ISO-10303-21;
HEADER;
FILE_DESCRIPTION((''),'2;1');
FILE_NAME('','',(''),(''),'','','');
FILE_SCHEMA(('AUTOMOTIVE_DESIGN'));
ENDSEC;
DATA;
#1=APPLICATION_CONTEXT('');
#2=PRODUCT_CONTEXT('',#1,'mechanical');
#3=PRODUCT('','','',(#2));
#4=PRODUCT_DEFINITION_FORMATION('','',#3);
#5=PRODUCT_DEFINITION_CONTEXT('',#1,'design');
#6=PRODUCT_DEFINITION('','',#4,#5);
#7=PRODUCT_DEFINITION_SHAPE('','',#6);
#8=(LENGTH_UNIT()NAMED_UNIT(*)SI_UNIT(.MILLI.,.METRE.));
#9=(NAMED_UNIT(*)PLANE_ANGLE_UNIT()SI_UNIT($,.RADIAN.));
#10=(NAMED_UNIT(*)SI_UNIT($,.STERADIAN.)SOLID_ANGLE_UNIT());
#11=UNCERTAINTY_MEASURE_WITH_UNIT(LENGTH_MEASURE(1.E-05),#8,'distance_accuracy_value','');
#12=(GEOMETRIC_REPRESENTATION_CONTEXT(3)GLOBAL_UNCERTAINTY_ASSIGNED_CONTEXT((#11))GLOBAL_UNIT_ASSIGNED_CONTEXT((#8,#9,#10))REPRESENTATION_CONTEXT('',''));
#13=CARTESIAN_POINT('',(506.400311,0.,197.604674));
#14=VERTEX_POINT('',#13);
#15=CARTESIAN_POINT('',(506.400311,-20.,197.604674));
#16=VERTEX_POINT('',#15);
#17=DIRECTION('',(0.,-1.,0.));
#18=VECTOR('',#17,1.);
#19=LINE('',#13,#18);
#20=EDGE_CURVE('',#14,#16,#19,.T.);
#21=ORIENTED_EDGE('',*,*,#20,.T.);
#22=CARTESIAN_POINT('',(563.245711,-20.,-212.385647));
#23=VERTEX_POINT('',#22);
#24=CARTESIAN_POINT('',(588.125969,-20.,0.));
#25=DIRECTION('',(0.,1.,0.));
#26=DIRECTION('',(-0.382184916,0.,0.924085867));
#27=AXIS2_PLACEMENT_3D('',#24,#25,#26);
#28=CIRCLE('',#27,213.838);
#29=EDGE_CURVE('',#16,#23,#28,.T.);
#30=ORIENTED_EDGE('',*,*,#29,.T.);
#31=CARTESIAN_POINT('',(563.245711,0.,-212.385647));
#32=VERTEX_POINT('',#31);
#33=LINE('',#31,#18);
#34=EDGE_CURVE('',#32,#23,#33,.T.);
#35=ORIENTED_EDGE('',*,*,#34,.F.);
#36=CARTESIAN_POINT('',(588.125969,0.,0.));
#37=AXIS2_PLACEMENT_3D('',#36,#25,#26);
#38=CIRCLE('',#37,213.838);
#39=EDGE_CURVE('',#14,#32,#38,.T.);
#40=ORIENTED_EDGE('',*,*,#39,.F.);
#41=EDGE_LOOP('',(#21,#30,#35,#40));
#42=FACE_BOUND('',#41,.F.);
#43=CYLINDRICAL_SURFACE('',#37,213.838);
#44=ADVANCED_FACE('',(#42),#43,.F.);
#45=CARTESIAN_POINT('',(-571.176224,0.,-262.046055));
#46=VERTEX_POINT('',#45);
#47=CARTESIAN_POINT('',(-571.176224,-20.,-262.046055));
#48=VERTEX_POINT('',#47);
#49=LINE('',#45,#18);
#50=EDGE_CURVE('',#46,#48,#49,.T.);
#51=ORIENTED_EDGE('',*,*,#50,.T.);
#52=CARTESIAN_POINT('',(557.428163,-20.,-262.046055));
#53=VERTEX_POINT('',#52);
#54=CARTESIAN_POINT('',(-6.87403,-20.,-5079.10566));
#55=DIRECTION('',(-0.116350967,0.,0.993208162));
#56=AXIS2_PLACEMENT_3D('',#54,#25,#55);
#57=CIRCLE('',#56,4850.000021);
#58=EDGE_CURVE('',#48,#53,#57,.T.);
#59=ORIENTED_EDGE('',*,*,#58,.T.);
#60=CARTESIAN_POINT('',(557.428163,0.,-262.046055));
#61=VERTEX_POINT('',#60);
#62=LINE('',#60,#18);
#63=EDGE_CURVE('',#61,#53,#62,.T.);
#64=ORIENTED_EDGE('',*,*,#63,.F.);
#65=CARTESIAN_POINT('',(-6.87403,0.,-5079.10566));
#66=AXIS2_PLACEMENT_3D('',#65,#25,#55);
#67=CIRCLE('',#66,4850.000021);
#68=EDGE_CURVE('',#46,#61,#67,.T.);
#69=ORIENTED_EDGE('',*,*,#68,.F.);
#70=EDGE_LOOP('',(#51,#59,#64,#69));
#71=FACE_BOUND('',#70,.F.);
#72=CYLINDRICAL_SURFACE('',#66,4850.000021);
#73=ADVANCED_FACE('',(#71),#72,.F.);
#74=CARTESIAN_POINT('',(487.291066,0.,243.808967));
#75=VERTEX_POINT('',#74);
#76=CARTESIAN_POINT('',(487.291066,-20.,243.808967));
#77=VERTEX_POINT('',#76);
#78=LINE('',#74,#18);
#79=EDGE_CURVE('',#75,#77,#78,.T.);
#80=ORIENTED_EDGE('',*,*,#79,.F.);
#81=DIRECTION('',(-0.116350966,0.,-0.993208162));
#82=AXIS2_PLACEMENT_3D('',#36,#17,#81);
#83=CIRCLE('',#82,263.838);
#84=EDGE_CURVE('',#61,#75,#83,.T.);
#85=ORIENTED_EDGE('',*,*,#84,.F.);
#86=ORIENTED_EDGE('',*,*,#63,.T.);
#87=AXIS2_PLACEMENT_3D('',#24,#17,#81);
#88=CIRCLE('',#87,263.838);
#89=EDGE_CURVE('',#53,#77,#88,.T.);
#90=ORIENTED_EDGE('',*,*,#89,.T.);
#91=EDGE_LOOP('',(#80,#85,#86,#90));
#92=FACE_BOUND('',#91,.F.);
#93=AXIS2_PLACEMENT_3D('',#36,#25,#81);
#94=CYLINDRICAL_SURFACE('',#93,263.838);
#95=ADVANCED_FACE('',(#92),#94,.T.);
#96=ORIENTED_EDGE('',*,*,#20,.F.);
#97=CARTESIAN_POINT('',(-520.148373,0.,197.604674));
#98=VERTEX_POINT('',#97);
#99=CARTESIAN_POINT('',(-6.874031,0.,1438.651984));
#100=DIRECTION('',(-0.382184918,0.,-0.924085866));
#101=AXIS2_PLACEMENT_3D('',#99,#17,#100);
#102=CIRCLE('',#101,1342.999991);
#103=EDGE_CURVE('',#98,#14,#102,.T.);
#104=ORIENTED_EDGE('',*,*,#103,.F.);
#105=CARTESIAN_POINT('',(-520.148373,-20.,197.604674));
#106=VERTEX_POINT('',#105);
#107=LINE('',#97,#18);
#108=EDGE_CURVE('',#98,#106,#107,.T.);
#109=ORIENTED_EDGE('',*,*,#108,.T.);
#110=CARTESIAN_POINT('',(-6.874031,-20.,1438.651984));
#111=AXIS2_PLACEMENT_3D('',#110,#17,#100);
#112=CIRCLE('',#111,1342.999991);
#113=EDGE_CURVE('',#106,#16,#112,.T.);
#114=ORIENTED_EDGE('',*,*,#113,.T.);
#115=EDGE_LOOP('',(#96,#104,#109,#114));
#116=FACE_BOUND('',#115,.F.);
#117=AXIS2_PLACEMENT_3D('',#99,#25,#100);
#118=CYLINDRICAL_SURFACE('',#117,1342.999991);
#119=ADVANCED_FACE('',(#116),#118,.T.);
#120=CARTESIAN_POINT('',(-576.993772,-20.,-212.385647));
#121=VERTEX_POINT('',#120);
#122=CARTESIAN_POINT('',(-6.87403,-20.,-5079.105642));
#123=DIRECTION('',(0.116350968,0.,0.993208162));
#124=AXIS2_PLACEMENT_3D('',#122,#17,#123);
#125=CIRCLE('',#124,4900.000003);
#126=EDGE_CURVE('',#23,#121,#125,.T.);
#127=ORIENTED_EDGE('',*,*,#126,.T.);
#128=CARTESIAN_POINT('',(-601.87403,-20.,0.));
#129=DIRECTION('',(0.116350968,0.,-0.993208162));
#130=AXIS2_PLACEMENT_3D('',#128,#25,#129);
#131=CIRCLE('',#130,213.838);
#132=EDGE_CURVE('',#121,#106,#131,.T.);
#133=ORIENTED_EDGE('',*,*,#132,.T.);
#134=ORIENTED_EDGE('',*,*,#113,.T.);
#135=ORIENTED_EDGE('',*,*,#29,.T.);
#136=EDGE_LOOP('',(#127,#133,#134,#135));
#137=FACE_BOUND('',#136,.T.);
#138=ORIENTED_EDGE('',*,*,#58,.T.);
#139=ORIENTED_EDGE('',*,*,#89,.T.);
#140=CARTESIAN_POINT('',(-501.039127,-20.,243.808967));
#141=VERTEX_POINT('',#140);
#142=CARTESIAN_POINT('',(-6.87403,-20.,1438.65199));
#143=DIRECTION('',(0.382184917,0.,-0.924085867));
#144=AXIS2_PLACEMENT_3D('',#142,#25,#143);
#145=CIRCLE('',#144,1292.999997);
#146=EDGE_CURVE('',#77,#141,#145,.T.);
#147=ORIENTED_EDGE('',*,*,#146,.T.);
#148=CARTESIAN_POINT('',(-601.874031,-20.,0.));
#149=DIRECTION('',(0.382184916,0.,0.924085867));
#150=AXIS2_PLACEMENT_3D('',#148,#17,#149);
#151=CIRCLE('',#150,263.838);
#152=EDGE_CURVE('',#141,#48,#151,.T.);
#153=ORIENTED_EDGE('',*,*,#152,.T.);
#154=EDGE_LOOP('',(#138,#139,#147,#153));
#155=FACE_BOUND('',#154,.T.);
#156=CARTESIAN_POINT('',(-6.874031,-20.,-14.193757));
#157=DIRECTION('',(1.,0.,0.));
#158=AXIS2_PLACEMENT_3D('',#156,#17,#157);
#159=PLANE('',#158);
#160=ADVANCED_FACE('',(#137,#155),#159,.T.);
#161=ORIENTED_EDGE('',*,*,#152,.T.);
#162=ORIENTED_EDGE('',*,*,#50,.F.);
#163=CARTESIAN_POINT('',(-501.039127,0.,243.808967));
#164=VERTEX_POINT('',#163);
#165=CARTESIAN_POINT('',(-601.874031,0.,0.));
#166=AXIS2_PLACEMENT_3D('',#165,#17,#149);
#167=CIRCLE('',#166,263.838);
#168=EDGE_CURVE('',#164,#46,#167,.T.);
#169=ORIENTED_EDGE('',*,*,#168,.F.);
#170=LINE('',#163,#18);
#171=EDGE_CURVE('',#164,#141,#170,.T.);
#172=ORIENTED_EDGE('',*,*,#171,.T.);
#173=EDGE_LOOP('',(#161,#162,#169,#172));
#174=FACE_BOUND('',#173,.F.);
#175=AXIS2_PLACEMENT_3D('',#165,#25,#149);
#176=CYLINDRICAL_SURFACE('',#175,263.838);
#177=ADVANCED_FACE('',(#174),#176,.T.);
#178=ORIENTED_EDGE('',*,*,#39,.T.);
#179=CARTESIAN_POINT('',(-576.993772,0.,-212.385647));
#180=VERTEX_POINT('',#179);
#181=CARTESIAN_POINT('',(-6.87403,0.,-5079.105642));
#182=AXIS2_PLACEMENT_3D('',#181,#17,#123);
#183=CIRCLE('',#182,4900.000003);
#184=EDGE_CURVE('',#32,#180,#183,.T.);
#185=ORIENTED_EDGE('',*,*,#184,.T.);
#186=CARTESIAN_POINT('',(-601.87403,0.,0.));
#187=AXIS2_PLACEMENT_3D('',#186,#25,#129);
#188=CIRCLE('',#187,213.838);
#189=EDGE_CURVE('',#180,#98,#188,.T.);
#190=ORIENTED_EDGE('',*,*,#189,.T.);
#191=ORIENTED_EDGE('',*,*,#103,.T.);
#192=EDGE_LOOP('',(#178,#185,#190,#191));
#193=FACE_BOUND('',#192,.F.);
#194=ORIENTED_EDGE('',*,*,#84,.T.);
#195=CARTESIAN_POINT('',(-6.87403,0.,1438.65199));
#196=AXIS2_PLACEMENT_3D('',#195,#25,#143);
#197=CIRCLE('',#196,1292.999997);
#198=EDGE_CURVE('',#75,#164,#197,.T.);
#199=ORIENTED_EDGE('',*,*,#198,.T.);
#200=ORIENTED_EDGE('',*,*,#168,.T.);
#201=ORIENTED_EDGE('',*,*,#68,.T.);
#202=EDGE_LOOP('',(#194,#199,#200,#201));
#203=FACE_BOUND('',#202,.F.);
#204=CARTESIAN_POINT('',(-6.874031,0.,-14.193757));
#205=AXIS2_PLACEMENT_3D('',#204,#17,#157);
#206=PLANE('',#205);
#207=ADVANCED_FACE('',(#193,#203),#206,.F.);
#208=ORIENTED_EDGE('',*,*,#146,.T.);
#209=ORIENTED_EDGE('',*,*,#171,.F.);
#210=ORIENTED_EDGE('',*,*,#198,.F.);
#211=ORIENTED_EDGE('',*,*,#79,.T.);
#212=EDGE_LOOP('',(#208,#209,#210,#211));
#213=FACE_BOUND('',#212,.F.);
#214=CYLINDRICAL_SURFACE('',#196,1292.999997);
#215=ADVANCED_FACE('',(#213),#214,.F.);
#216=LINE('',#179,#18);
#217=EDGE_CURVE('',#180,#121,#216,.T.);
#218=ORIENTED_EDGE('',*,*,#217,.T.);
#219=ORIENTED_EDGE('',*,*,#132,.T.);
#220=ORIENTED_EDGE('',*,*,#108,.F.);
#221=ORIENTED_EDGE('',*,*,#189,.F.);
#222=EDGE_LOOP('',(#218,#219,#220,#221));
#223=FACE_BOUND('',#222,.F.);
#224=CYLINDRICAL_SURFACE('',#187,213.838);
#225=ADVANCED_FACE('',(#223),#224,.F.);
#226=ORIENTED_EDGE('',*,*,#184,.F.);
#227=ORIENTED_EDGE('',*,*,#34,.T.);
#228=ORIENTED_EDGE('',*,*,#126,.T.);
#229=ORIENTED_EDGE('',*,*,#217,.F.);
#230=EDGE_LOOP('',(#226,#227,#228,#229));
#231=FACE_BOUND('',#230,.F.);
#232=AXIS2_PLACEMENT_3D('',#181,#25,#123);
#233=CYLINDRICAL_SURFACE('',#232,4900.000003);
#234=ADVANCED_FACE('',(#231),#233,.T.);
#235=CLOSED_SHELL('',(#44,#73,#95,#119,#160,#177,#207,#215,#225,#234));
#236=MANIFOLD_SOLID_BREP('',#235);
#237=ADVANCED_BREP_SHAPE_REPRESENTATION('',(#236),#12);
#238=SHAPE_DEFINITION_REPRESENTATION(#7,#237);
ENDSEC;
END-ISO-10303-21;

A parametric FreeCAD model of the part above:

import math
import FreeCAD as App
import Part
import Sketcher

V = App.Vector

doc = App.newDocument("Part")
body = doc.addObject("PartDesign::Body", "Body")

# Sketch on XZ plane
sketch1 = body.newObject("Sketcher::SketchObject", "Sketch")
sketch1.AttachmentSupport = (doc.getObject("XZ_Plane"), [""])
sketch1.MapMode = "FlatFace"
sketch1.addGeometry([
    Part.ArcOfCircle(Part.Circle(V(-6.87403, 1438.65199, 0), V(0, 0, 1), 1292.999997), math.radians(-112.469087), math.radians(-67.530913)),  # 0
    Part.ArcOfCircle(Part.Circle(V(-601.874031, 0, 0), V(0, 0, 1), 263.838), math.radians(67.530913), math.radians(276.681553)),  # 1
    Part.ArcOfCircle(Part.Circle(V(-6.87403, -5079.10566, 0), V(0, 0, 1), 4850.000021), math.radians(83.318447), math.radians(96.681553)),  # 2
    Part.ArcOfCircle(Part.Circle(V(588.125969, 0, 0), V(0, 0, 1), 263.838), math.radians(-96.681553), math.radians(112.469087)),  # 3
    Part.ArcOfCircle(Part.Circle(V(-6.87403, -5079.105642, 0), V(0, 0, 1), 4900.000003), math.radians(83.318447), math.radians(96.681553)),  # 4
    Part.ArcOfCircle(Part.Circle(V(-601.87403, 0, 0), V(0, 0, 1), 213.838), math.radians(67.530913), math.radians(276.681553)),  # 5
    Part.ArcOfCircle(Part.Circle(V(-6.874031, 1438.651984, 0), V(0, 0, 1), 1342.999991), math.radians(-112.469087), math.radians(-67.530913)),  # 6
    Part.ArcOfCircle(Part.Circle(V(588.125969, 0, 0), V(0, 0, 1), 213.838), math.radians(-96.681553), math.radians(112.469087)),  # 7
], False)
sketch1.addConstraint([
    Sketcher.Constraint("Tangent", 0, 1, 1, 1),
    Sketcher.Constraint("Tangent", 1, 2, 2, 2),
    Sketcher.Constraint("Tangent", 2, 1, 3, 1),
    Sketcher.Constraint("Tangent", 3, 2, 0, 2),
    Sketcher.Constraint("Tangent", 4, 2, 5, 2),
    Sketcher.Constraint("Tangent", 5, 1, 6, 1),
    Sketcher.Constraint("Tangent", 6, 2, 7, 2),
    Sketcher.Constraint("Tangent", 7, 1, 4, 1),
    Sketcher.Constraint("Coincident", 5, 3, 1, 3),
    Sketcher.Constraint("Coincident", 6, 3, 0, 3),
    Sketcher.Constraint("Coincident", 7, 3, 3, 3),
    Sketcher.Constraint("Equal", 1, 3),
    Sketcher.Constraint("PointOnObject", 1, 3, -1),
    Sketcher.Constraint("PointOnObject", 3, 3, -1),
    Sketcher.Constraint("Radius", 1, 263.838),
    Sketcher.Constraint("Radius", 5, 213.838),
    Sketcher.Constraint("DistanceX", 1, 3, 0, 3, 595.0),
    Sketcher.Constraint("Radius", 2, 4850.000021),
    Sketcher.Constraint("Radius", 6, 1342.999991),
    Sketcher.Constraint("Radius", 4, 4900.000003),
    Sketcher.Constraint("DistanceX", 0, 3, -1, 1, 6.87403),
])
pad1 = body.newObject("PartDesign::Pad", "Pad")
pad1.Profile = sketch1
pad1.Length = 20

doc.recompute()
